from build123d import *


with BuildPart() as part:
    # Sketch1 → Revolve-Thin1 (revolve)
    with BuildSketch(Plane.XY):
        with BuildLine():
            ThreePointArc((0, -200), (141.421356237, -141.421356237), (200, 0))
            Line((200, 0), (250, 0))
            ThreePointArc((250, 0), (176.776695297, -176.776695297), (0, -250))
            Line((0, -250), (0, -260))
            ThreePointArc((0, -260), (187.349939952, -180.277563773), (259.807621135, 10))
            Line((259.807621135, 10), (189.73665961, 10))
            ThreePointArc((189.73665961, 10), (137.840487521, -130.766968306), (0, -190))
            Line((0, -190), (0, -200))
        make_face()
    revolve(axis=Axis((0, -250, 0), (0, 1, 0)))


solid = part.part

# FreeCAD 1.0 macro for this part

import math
import FreeCAD as App
import Part
import Sketcher

V = App.Vector
Q = App.Units.Quantity

doc = App.newDocument("Part")
params = doc.addObject("Spreadsheet::Sheet", "Params")
for row, (alias, value) in enumerate([
    ("sketch1_radius", "200 mm"),
    ("sketch1_radius2", "250 mm"),
    ("sketch1_radius3", "260 mm"),
    ("revolution_angle", "360 deg"),
], start=1):
    params.set(f"A{row}", alias)
    params.set(f"B{row}", "=" + value)
    params.setAlias(f"B{row}", alias)

body = doc.addObject("PartDesign::Body", "Body")

sketch1 = body.newObject("Sketcher::SketchObject", "Sketch")
sketch1.AttachmentSupport = (doc.getObject("XY_Plane"), [""])
sketch1.MapMode = "FlatFace"
sketch1.addGeometry(Part.ArcOfCircle(Part.Circle(V(0, 0, 0), V(0, 0, 1), 200), math.radians(-90), math.radians(0)), False)
sketch1.addGeometry(Part.LineSegment(V(200, 0, 0), V(250, 0, 0)), False)
sketch1.addGeometry(Part.ArcOfCircle(Part.Circle(V(0, 0, 0), V(0, 0, 1), 250), math.radians(-90), math.radians(0)), False)
sketch1.addGeometry(Part.LineSegment(V(0, -250, 0), V(0, -260, 0)), False)
sketch1.addGeometry(Part.ArcOfCircle(Part.Circle(V(0, 0, 0), V(0, 0, 1), 260), math.radians(-90), math.radians(2.204228)), False)
sketch1.addGeometry(Part.LineSegment(V(259.807621, 10, 0), V(189.73666, 10, 0)), False)
sketch1.addGeometry(Part.ArcOfCircle(Part.Circle(V(0, 0, 0), V(0, 0, 1), 190), math.radians(-90), math.radians(3.016961)), False)
sketch1.addGeometry(Part.LineSegment(V(0, -190, 0), V(0, -200, 0)), False)
sketch1.addConstraint(Sketcher.Constraint("Coincident", 0, 2, 1, 1))
sketch1.addConstraint(Sketcher.Constraint("Coincident", 1, 2, 2, 2))
sketch1.addConstraint(Sketcher.Constraint("Coincident", 2, 1, 3, 1))
sketch1.addConstraint(Sketcher.Constraint("Coincident", 3, 2, 4, 1))
sketch1.addConstraint(Sketcher.Constraint("Coincident", 4, 2, 5, 1))
sketch1.addConstraint(Sketcher.Constraint("Coincident", 5, 2, 6, 2))
sketch1.addConstraint(Sketcher.Constraint("Coincident", 6, 1, 7, 1))
sketch1.addConstraint(Sketcher.Constraint("Coincident", 7, 2, 0, 1))
sketch1.addConstraint(Sketcher.Constraint("Horizontal", 1))
sketch1.addConstraint(Sketcher.Constraint("Vertical", 3))
sketch1.addConstraint(Sketcher.Constraint("Horizontal", 5))
sketch1.addConstraint(Sketcher.Constraint("Vertical", 7))
sketch1.addConstraint(Sketcher.Constraint("Coincident", 0, 3, -1, 1))
sketch1.addConstraint(Sketcher.Constraint("Coincident", 2, 3, -1, 1))
sketch1.addConstraint(Sketcher.Constraint("Coincident", 4, 3, -1, 1))
sketch1.addConstraint(Sketcher.Constraint("Coincident", 6, 3, -1, 1))
sketch1.addConstraint(Sketcher.Constraint("PointOnObject", 0, 2, -1))
sketch1.addConstraint(Sketcher.Constraint("PointOnObject", 2, 1, -2))
sketch1.addConstraint(Sketcher.Constraint("PointOnObject", 6, 1, -2))
sketch1.addConstraint(Sketcher.Constraint("Equal", 3, 7))
sketch1.addConstraint(Sketcher.Constraint("Radius", 0, Q("200 mm")))
sketch1.addConstraint(Sketcher.Constraint("Radius", 2, Q("250 mm")))
sketch1.addConstraint(Sketcher.Constraint("Radius", 4, Q("260 mm")))
sketch1.addConstraint(Sketcher.Constraint("DistanceY", -1, 1, 4, 2, Q("10 mm")))
sketch1.setExpression("Constraints[20]", "Params.sketch1_radius")
sketch1.setExpression("Constraints[21]", "Params.sketch1_radius2")
sketch1.setExpression("Constraints[22]", "Params.sketch1_radius3")
revolution = body.newObject("PartDesign::Revolution", "Revolution")
revolution.Profile = sketch1
revolution.ReferenceAxis = (sketch1, ["V_Axis"])
revolution.setExpression("Angle", "Params.revolution_angle")

doc.recompute()
